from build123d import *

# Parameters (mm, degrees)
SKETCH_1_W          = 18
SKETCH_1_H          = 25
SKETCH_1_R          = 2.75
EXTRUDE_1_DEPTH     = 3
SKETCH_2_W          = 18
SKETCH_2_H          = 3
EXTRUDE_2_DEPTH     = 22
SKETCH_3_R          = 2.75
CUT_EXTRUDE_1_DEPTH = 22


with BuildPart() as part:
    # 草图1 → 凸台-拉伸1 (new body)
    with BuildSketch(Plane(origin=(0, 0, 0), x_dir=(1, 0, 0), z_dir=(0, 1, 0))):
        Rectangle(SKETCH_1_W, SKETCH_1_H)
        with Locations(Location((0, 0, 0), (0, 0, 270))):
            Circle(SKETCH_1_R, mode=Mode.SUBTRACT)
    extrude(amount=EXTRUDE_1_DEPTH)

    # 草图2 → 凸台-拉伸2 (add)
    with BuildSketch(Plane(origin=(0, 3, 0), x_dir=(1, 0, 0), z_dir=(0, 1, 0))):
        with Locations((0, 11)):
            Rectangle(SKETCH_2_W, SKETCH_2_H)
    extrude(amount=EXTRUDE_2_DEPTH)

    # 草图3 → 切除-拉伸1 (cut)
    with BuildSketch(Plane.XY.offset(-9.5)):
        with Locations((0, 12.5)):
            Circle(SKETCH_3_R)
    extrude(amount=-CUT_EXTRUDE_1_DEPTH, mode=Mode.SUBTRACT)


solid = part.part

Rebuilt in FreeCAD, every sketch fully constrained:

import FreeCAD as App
import Part
import Sketcher
from FreeCAD import Vector

doc = App.newDocument("Part")
body = doc.addObject("PartDesign::Body", "Body")

# Sketch on XZ plane
sketch1 = doc.addObject("Sketcher::SketchObject", "Sketch")
body.addObject(sketch1)
sketch1.AttachmentSupport = (doc.XZ_Plane, [""])
sketch1.MapMode = "FlatFace"
sketch1.addGeometry(Part.LineSegment(Vector(-9, -12.5, 0), Vector(-9, 12.5, 0)), False)
sketch1.addGeometry(Part.LineSegment(Vector(-9, 12.5, 0), Vector(9, 12.5, 0)), False)
sketch1.addGeometry(Part.LineSegment(Vector(9, 12.5, 0), Vector(9, -12.5, 0)), False)
sketch1.addGeometry(Part.LineSegment(Vector(9, -12.5, 0), Vector(-9, -12.5, 0)), False)
sketch1.addGeometry(Part.Circle(Vector(0, 0, 0), Vector(0, 0, 1), 2.8), False)
sketch1.addConstraint(Sketcher.Constraint("Coincident", 0, 2, 1, 1))
sketch1.addConstraint(Sketcher.Constraint("Coincident", 1, 2, 2, 1))
sketch1.addConstraint(Sketcher.Constraint("Coincident", 2, 2, 3, 1))
sketch1.addConstraint(Sketcher.Constraint("Coincident", 3, 2, 0, 1))
sketch1.addConstraint(Sketcher.Constraint("Vertical", 0))
sketch1.addConstraint(Sketcher.Constraint("Horizontal", 1))
sketch1.addConstraint(Sketcher.Constraint("Vertical", 2))
sketch1.addConstraint(Sketcher.Constraint("Horizontal", 3))
sketch1.addConstraint(Sketcher.Constraint("Coincident", 4, 3, -1, 1))
sketch1.addConstraint(Sketcher.Constraint("Symmetric", 0, 2, 2, 2, -1, 1))
sketch1.addConstraint(Sketcher.Constraint("Diameter", 4, 5.5))
sketch1.addConstraint(Sketcher.Constraint("DistanceX", 1, 1, 1, 2, 18.0))
sketch1.addConstraint(Sketcher.Constraint("DistanceY", 0, 1, 0, 2, 25.0))
pad1 = doc.addObject("PartDesign::Pad", "Pad")
body.addObject(pad1)
pad1.Profile = sketch1
pad1.Length = 3
pad1.Reversed = True

# Sketch on XZ plane
sketch2 = doc.addObject("Sketcher::SketchObject", "Sketch001")
body.addObject(sketch2)
sketch2.AttachmentSupport = (doc.XZ_Plane, [""])
sketch2.MapMode = "FlatFace"
sketch2.AttachmentOffset = App.Placement(Vector(0, 0, -3), App.Rotation())
sketch2.addGeometry(Part.LineSegment(Vector(-9, -12.5, 0), Vector(-9, -9.5, 0)), False)
sketch2.addGeometry(Part.LineSegment(Vector(-9, -9.5, 0), Vector(9, -9.5, 0)), False)
sketch2.addGeometry(Part.LineSegment(Vector(9, -9.5, 0), Vector(9, -12.5, 0)), False)
sketch2.addGeometry(Part.LineSegment(Vector(9, -12.5, 0), Vector(-9, -12.5, 0)), False)
sketch2.addConstraint(Sketcher.Constraint("Coincident", 0, 2, 1, 1))
sketch2.addConstraint(Sketcher.Constraint("Coincident", 1, 2, 2, 1))
sketch2.addConstraint(Sketcher.Constraint("Coincident", 2, 2, 3, 1))
sketch2.addConstraint(Sketcher.Constraint("Coincident", 3, 2, 0, 1))
sketch2.addConstraint(Sketcher.Constraint("Vertical", 0))
sketch2.addConstraint(Sketcher.Constraint("Horizontal", 1))
sketch2.addConstraint(Sketcher.Constraint("Vertical", 2))
sketch2.addConstraint(Sketcher.Constraint("Horizontal", 3))
sketch2.addConstraint(Sketcher.Constraint("DistanceX", 1, 1, 1, 2, 18.0))
sketch2.addConstraint(Sketcher.Constraint("DistanceY", 0, 1, 0, 2, 3.0))
sketch2.addConstraint(Sketcher.Constraint("DistanceX", 0, 2, -1, 1, 9.0))
sketch2.addConstraint(Sketcher.Constraint("DistanceY", 0, 2, -1, 1, 9.5))
pad2 = doc.addObject("PartDesign::Pad", "Pad001")
body.addObject(pad2)
pad2.Profile = sketch2
pad2.Length = 22
pad2.Reversed = True

# Sketch on XY plane
sketch3 = doc.addObject("Sketcher::SketchObject", "Sketch002")
body.addObject(sketch3)
sketch3.AttachmentSupport = (doc.XY_Plane, [""])
sketch3.MapMode = "FlatFace"
sketch3.AttachmentOffset = App.Placement(Vector(0, 0, -9.5), App.Rotation())
sketch3.addGeometry(Part.Circle(Vector(0, 12.5, 0), Vector(0, 0, 1), 2.8), False)
sketch3.addConstraint(Sketcher.Constraint("PointOnObject", 0, 3, -2))
sketch3.addConstraint(Sketcher.Constraint("Diameter", 0, 5.5))
sketch3.addConstraint(Sketcher.Constraint("DistanceY", -1, 1, 0, 3, 12.5))
pocket1 = doc.addObject("PartDesign::Pocket", "Pocket")
body.addObject(pocket1)
pocket1.Profile = sketch3
pocket1.Length = 22

doc.recompute()
